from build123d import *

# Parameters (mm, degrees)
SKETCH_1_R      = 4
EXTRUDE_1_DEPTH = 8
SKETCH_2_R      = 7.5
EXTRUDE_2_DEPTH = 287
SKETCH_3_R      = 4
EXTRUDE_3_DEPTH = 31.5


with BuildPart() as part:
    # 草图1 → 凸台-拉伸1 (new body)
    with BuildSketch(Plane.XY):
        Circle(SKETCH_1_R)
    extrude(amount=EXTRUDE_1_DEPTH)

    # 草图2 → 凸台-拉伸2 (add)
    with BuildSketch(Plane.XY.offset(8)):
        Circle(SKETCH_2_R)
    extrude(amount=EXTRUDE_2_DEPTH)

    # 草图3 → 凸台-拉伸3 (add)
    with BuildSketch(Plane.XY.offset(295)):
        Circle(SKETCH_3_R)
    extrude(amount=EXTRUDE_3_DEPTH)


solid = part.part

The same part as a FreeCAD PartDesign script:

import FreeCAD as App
import Part
import Sketcher
from FreeCAD import Vector
Q = App.Units.Quantity

doc = App.newDocument("Part")
body = doc.addObject("PartDesign::Body", "Body")

# Sketch on XY plane
sketch1 = body.newObject("Sketcher::SketchObject", "Sketch")
sketch1.AttachmentSupport = (doc.getObject("XY_Plane"), [""])
sketch1.MapMode = "FlatFace"
sketch1.addGeometry(Part.Circle(Vector(0, 0, 0), Vector(0, 0, 1), 4), False)
sketch1.addConstraint([
    Sketcher.Constraint("Coincident", 0, 3, -1, 1),
    Sketcher.Constraint("Diameter", 0, Q("8 mm")),
])
pad1 = body.newObject("PartDesign::Pad", "Pad")
pad1.Profile = sketch1
pad1.Length = 8

# Sketch on XY plane
sketch2 = body.newObject("Sketcher::SketchObject", "Sketch001")
sketch2.AttachmentSupport = (doc.getObject("XY_Plane"), [""])
sketch2.MapMode = "FlatFace"
sketch2.AttachmentOffset = App.Placement(Vector(0, 0, 8), App.Rotation())
sketch2.addGeometry(Part.Circle(Vector(0, 0, 0), Vector(0, 0, 1), 8), False)
sketch2.addConstraint([
    Sketcher.Constraint("Coincident", 0, 3, -1, 1),
    Sketcher.Constraint("Diameter", 0, Q("15 mm")),
])
pad2 = body.newObject("PartDesign::Pad", "Pad001")
pad2.Profile = sketch2
pad2.Length = 287

# Sketch on XY plane
sketch3 = body.newObject("Sketcher::SketchObject", "Sketch002")
sketch3.AttachmentSupport = (doc.getObject("XY_Plane"), [""])
sketch3.MapMode = "FlatFace"
sketch3.AttachmentOffset = App.Placement(Vector(0, 0, 295), App.Rotation())
sketch3.addGeometry(Part.Circle(Vector(0, 0, 0), Vector(0, 0, 1), 4), False)
sketch3.addConstraint([
    Sketcher.Constraint("Coincident", 0, 3, -1, 1),
    Sketcher.Constraint("Diameter", 0, Q("8 mm")),
])
pad3 = body.newObject("PartDesign::Pad", "Pad002")
pad3.Profile = sketch3
pad3.Length = 31.5

doc.recompute()
